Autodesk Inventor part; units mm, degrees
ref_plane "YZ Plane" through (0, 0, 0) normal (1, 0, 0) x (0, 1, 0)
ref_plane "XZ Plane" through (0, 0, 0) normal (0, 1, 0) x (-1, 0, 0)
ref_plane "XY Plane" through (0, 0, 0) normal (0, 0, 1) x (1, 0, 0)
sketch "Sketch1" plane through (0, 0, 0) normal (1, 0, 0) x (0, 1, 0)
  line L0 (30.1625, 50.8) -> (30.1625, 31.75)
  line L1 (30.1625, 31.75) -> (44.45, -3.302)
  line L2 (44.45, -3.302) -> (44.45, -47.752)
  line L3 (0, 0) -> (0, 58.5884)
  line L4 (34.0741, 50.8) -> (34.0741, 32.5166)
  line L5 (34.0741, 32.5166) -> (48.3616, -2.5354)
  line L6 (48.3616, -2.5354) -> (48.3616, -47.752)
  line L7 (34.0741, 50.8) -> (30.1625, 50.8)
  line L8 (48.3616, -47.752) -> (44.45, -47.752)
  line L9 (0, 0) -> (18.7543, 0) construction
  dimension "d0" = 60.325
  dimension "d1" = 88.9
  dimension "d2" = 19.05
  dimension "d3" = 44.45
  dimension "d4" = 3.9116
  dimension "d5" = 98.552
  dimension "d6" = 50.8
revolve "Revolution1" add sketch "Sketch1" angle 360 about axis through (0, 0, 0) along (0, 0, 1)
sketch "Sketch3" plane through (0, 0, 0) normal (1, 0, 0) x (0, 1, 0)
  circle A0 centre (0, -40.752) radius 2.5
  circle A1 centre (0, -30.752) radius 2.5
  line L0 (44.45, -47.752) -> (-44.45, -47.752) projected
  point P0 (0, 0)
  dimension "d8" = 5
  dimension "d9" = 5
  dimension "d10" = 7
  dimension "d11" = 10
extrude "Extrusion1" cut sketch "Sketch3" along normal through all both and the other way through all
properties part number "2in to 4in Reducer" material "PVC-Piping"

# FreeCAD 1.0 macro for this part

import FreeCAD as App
import Part
import Sketcher
from FreeCAD import Vector
Q = App.Units.Quantity


def add_polygon(sketch, points):
    """Adds a closed chain of lines whose ends are joined by coincident constraints."""
    first, n = sketch.GeometryCount, len(points)
    for a, b in zip(points, points[1:] + points[:1]):
        sketch.addGeometry(Part.LineSegment(App.Vector(*a, 0), App.Vector(*b, 0)), False)
    for i in range(n):
        sketch.addConstraint(Sketcher.Constraint("Coincident", first + i, 2, first + (i + 1) % n, 1))

doc = App.newDocument("Part")
body = doc.addObject("PartDesign::Body", "Body")

# Sketch on YZ plane
sketch1 = body.newObject("Sketcher::SketchObject", "Sketch")
sketch1.AttachmentSupport = (doc.getObject("YZ_Plane"), [""])
sketch1.MapMode = "FlatFace"
add_polygon(sketch1, [(34.0741, 50.8), (30.1625, 50.8), (30.1625, 31.75), (44.45, -3.302), (44.45, -47.752), (48.3616, -47.752), (48.3616, -2.5354), (34.0741, 32.5166)])  # lines 0-7
sketch1.addConstraint([
    Sketcher.Constraint("Horizontal", 0),
    Sketcher.Constraint("Vertical", 1),
    Sketcher.Constraint("Vertical", 3),
    Sketcher.Constraint("Horizontal", 4),
    Sketcher.Constraint("Vertical", 5),
    Sketcher.Constraint("Vertical", 7),
    Sketcher.Constraint("Parallel", 2, 6),
    Sketcher.Constraint("Equal", 0, 4),
    Sketcher.Constraint("DistanceY", -1, 1, 0, 2, Q("2 in")),
    Sketcher.Constraint("DistanceY", 1, 2, 1, 1, Q("0.75 in")),
    Sketcher.Constraint("DistanceY", 3, 2, 3, 1, Q("1.75 in")),
    Sketcher.Constraint("DistanceX", 0, 2, 0, 1, Q("0.154 in")),
    Sketcher.Constraint("DistanceX", -1, 1, 2, 2, Q("1.75 in")),
    Sketcher.Constraint("DistanceY", 3, 2, 0, 2, Q("3.88 in")),
    Sketcher.Constraint("DistanceX", -1, 1, 0, 2, Q("1.1875 in")),
    Sketcher.Constraint("DistanceY", 5, 1, 5, 2, Q("45.2166 mm")),
])
revolution = body.newObject("PartDesign::Revolution", "Revolution")
revolution.Profile = sketch1
revolution.ReferenceAxis = (sketch1, ["V_Axis"])
revolution.Angle = 360

# Sketch on YZ plane
sketch2 = body.newObject("Sketcher::SketchObject", "Sketch001")
sketch2.AttachmentSupport = (doc.getObject("YZ_Plane"), [""])
sketch2.MapMode = "FlatFace"
sketch2.addGeometry([
    Part.Circle(Vector(0, -40.752, 0), Vector(0, 0, 1), 2.5),
    Part.Circle(Vector(0, -30.752, 0), Vector(0, 0, 1), 2.5),
], False)
sketch2.addConstraint([
    Sketcher.Constraint("Equal", 0, 1),
    Sketcher.Constraint("PointOnObject", 0, 3, -2),
    Sketcher.Constraint("PointOnObject", 1, 3, -2),
    Sketcher.Constraint("Diameter", 0, Q("5 mm")),
    Sketcher.Constraint("DistanceY", 0, 3, 1, 3, Q("0.3937 in")),
    Sketcher.Constraint("DistanceY", 0, 3, -1, 1, Q("1.6044 in")),
])
pocket1 = body.newObject("PartDesign::Pocket", "Pocket")
pocket1.Profile = sketch2
pocket1.Type = "ThroughAll"
pocket1.Midplane = True

doc.recompute()
